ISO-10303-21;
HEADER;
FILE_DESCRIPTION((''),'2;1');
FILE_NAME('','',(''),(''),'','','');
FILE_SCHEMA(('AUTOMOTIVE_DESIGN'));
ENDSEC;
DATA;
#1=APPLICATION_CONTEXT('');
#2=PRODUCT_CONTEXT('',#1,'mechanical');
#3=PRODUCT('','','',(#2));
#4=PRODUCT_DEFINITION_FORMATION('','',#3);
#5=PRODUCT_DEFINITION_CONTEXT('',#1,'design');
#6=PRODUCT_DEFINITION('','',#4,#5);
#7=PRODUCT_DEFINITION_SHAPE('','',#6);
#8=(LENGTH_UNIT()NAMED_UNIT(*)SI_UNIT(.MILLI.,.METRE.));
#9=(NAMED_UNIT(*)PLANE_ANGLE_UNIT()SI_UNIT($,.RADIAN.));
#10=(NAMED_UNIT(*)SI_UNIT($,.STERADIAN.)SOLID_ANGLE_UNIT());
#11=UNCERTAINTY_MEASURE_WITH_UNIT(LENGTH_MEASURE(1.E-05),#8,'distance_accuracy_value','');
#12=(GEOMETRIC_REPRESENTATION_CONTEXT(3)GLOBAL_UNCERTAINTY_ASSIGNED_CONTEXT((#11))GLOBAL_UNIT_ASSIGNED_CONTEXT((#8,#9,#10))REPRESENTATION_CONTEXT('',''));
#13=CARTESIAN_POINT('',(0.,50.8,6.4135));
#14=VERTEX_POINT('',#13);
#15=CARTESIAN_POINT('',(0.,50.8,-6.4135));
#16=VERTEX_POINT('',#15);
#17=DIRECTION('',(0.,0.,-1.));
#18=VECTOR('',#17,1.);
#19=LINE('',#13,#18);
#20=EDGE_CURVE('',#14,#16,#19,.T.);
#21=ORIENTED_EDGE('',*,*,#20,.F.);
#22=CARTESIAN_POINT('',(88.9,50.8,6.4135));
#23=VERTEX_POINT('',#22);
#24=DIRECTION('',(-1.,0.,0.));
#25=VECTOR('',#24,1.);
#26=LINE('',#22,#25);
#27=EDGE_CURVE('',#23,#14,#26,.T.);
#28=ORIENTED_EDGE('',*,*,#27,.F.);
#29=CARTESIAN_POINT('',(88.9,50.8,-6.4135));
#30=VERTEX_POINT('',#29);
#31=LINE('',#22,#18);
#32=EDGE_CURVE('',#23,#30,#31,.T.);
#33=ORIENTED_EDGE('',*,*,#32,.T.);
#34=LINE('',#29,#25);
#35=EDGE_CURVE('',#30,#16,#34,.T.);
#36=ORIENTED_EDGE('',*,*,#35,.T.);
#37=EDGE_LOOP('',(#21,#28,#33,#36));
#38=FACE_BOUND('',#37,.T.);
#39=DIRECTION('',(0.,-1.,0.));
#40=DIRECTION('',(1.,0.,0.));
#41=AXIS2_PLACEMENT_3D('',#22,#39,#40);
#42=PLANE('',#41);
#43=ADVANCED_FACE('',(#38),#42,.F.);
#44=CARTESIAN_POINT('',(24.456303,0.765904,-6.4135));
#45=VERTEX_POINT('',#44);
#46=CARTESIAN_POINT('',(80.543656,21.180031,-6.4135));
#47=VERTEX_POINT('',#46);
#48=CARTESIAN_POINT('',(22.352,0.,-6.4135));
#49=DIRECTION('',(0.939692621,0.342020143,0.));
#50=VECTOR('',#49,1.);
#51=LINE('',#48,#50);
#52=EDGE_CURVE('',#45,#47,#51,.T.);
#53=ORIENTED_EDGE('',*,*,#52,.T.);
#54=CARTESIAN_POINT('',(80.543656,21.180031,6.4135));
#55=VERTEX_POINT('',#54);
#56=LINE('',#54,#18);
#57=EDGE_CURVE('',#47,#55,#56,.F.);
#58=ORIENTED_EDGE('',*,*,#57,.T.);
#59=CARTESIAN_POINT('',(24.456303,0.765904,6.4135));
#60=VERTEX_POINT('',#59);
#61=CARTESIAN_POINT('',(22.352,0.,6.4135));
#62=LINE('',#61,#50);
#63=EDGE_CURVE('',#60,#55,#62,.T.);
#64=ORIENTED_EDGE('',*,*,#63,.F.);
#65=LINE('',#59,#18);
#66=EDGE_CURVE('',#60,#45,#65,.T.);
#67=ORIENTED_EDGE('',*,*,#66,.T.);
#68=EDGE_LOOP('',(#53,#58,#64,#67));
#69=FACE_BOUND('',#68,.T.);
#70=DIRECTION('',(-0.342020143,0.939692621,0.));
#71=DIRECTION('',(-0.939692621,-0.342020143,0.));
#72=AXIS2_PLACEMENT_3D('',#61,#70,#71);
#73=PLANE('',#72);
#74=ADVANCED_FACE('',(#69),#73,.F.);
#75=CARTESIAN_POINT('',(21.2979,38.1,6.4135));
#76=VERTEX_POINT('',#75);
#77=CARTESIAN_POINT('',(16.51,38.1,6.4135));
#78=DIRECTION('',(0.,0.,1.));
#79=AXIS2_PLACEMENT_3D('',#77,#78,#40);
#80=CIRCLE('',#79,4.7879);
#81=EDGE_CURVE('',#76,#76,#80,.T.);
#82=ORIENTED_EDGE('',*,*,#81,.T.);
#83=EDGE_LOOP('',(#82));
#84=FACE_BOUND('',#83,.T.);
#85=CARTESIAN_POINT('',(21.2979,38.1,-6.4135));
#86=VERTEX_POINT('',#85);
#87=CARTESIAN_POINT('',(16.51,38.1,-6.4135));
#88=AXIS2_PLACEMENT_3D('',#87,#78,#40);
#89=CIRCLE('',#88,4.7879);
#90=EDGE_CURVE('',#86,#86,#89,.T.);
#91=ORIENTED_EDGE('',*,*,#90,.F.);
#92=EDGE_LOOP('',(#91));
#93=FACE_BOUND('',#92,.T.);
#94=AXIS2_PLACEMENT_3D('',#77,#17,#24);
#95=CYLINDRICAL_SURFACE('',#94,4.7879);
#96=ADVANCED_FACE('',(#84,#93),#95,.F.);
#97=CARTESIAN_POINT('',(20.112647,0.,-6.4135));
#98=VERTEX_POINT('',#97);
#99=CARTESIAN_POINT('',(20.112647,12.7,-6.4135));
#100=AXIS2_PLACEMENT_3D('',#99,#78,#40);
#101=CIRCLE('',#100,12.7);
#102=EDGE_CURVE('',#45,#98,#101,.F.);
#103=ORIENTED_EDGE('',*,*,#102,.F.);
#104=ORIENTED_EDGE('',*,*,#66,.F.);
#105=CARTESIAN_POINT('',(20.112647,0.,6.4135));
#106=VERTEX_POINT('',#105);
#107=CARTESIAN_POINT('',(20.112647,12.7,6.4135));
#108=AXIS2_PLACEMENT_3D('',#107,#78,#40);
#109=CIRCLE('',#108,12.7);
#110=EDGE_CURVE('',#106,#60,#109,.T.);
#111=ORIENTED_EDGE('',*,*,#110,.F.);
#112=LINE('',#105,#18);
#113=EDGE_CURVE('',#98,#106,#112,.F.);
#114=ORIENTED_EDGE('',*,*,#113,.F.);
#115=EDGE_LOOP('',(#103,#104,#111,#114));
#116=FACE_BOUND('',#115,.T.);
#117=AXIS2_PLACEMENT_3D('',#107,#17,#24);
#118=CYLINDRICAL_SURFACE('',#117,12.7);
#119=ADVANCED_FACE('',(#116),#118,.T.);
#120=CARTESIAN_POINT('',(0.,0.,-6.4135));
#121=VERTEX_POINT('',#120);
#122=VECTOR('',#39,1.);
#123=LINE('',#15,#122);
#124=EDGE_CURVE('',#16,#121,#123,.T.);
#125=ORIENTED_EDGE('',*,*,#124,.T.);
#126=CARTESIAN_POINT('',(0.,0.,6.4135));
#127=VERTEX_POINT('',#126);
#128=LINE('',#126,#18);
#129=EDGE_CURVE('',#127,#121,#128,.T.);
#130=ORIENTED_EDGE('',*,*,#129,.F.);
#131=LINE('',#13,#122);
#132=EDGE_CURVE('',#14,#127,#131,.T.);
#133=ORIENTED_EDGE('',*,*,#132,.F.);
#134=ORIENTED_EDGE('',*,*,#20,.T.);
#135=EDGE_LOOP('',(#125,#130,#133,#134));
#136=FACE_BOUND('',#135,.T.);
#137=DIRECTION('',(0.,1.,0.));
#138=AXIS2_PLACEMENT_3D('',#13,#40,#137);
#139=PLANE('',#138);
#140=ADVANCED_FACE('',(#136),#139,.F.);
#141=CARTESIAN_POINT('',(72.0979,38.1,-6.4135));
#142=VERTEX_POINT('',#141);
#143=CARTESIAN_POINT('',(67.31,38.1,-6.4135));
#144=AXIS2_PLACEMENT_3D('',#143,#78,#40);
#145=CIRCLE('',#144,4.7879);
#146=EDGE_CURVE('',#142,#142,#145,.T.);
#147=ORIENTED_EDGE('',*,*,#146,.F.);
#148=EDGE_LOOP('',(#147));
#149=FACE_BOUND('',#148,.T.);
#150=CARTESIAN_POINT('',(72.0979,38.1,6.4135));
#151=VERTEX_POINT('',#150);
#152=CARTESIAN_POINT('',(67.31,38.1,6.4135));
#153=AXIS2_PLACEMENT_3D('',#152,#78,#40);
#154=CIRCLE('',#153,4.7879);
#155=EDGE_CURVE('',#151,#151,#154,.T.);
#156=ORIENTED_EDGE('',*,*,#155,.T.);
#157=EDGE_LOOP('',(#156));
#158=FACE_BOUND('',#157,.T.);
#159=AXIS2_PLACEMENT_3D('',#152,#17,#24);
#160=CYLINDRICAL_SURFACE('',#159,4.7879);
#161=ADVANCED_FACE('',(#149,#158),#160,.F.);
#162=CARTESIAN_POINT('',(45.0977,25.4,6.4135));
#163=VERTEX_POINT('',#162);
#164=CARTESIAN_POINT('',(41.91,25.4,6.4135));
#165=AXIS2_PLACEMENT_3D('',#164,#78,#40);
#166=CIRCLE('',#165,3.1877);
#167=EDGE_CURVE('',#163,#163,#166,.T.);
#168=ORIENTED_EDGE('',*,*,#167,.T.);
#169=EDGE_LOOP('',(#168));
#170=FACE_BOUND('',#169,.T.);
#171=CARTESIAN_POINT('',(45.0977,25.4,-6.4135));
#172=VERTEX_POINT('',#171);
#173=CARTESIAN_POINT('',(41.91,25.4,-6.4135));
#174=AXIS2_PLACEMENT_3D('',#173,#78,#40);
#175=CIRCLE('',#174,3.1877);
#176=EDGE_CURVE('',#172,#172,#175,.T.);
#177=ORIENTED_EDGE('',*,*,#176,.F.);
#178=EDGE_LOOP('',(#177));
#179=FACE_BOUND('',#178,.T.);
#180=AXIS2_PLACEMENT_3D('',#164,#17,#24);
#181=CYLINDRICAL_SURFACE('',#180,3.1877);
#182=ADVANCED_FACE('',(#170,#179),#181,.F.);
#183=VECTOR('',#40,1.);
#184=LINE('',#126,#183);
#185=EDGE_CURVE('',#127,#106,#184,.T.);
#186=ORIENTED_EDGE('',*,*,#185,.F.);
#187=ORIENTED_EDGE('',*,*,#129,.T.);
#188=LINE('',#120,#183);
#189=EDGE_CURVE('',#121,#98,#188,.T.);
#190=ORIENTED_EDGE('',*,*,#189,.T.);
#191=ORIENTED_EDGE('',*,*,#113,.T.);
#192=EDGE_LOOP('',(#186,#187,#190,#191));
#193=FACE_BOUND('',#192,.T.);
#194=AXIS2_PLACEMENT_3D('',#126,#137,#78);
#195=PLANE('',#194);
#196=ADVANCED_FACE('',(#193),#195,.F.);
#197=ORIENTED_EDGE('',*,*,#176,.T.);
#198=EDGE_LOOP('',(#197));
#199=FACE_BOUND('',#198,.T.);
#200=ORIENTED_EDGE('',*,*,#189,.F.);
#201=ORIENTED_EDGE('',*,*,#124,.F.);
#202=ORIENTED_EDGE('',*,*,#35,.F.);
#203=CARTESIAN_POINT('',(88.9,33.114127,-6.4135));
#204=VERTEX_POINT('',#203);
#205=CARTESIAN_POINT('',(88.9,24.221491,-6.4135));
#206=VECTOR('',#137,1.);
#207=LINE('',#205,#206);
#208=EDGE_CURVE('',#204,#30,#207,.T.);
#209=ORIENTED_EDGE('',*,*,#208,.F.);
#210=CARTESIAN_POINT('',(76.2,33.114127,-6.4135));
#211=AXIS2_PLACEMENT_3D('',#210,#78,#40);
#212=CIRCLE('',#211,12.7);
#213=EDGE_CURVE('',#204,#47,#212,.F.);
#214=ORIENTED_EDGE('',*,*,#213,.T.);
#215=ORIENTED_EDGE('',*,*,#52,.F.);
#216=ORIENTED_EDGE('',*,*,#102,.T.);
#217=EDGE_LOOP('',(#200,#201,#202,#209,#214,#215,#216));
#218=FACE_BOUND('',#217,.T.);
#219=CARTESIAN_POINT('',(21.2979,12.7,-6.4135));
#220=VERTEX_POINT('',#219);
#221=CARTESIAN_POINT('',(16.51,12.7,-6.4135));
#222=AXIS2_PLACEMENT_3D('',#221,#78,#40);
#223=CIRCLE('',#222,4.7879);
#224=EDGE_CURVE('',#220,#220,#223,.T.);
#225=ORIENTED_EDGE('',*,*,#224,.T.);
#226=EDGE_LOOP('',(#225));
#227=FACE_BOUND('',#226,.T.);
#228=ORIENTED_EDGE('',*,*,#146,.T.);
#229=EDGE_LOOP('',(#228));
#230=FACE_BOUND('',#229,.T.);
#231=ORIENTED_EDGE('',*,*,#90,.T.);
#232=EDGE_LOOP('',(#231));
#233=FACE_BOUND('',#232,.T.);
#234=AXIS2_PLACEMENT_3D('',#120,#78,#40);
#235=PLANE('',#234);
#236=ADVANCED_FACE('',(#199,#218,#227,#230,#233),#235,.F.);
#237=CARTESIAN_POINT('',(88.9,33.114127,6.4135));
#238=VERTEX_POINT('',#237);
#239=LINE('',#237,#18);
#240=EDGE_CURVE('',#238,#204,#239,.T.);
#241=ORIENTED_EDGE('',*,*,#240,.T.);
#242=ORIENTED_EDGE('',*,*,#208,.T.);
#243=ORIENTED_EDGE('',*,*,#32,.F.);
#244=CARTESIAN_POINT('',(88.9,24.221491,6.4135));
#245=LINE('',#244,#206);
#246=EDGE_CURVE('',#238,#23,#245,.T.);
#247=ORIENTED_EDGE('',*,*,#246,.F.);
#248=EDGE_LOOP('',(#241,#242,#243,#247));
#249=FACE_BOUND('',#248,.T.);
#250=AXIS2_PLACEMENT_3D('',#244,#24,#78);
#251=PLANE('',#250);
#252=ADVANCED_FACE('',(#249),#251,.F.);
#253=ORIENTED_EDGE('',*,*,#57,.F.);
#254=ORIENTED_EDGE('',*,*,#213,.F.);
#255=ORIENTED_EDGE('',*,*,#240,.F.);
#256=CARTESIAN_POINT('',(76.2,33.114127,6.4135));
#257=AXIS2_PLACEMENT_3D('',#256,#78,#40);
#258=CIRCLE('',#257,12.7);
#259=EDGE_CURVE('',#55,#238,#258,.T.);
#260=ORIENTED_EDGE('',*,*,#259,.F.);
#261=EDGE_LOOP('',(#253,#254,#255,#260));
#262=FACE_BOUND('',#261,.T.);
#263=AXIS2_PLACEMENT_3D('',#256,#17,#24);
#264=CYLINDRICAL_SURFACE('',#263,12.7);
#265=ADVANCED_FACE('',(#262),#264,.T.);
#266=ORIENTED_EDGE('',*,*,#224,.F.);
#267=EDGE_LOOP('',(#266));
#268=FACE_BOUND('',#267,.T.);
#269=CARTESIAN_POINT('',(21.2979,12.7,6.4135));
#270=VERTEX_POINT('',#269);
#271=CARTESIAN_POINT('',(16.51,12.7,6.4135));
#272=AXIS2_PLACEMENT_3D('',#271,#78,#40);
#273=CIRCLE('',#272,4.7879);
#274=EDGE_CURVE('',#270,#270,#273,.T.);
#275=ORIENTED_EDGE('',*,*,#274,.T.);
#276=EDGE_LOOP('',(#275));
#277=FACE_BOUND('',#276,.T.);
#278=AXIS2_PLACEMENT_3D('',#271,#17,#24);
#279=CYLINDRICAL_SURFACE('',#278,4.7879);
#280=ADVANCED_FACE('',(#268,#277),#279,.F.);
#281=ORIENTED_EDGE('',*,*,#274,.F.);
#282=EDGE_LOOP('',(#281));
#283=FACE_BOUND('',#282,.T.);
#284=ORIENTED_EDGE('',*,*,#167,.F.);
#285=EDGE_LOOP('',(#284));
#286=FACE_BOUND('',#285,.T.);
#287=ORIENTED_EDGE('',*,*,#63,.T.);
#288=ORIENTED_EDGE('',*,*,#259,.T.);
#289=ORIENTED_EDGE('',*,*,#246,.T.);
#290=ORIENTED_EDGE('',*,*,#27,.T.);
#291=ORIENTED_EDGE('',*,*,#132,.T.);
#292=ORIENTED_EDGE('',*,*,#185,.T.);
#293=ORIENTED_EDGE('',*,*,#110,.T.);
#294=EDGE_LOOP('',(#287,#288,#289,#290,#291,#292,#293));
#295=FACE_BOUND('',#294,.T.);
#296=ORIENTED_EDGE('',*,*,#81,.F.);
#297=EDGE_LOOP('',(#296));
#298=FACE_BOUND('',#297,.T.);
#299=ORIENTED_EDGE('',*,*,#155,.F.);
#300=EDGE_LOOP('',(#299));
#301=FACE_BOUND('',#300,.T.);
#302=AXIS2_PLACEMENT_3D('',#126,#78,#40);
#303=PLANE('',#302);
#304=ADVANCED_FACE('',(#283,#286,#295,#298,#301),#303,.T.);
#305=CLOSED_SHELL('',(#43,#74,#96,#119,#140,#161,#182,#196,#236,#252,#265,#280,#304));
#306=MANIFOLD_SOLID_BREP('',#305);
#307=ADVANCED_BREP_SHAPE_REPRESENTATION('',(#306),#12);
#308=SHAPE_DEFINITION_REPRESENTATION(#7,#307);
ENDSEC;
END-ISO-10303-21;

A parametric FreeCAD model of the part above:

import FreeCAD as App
import Part
import Sketcher

V = App.Vector
Q = App.Units.Quantity


def edges_at(feature, points):
    """Names of the edges that pass closest to the given points."""
    edges = feature.Shape.Edges
    near = lambda p: min(range(len(edges)), key=lambda i: edges[i].distToShape(Part.Vertex(*p))[0])
    return sorted({f"Edge{near(p) + 1}" for p in points})


def add_polygon(sketch, points):
    """Adds a closed chain of lines whose ends are joined by coincident constraints."""
    first, n = sketch.GeometryCount, len(points)
    for a, b in zip(points, points[1:] + points[:1]):
        sketch.addGeometry(Part.LineSegment(App.Vector(*a, 0), App.Vector(*b, 0)), False)
    for i in range(n):
        sketch.addConstraint(Sketcher.Constraint("Coincident", first + i, 2, first + (i + 1) % n, 1))

doc = App.newDocument("Part")
body = doc.addObject("PartDesign::Body", "Body")

# Sketch on XY plane
sketch1 = doc.addObject("Sketcher::SketchObject", "Sketch")
body.addObject(sketch1)
sketch1.AttachmentSupport = (doc.XY_Plane, [""])
sketch1.MapMode = "FlatFace"
add_polygon(sketch1, [(0, 0), (22.4, 0), (88.9, 24.2), (88.9, 50.8), (0, 50.8)])  # lines 0-4
sketch1.addGeometry(Part.Circle(V(16.5, 12.7, 0), V(0, 0, 1), 4.8), False)  # 5
sketch1.addGeometry(Part.Circle(V(41.9, 25.4, 0), V(0, 0, 1), 3.2), False)  # 6
sketch1.addGeometry(Part.Circle(V(16.5, 38.1, 0), V(0, 0, 1), 4.8), False)  # 7
sketch1.addGeometry(Part.Circle(V(67.3, 38.1, 0), V(0, 0, 1), 4.8), False)  # 8
sketch1.addConstraint(Sketcher.Constraint("Horizontal", 0))
sketch1.addConstraint(Sketcher.Constraint("Vertical", 2))
sketch1.addConstraint(Sketcher.Constraint("Horizontal", 3))
sketch1.addConstraint(Sketcher.Constraint("Vertical", 4))
sketch1.addConstraint(Sketcher.Constraint("Coincident", 4, 2, -1, 1))
sketch1.addConstraint(Sketcher.Constraint("Equal", 5, 7))
sketch1.addConstraint(Sketcher.Constraint("Equal", 7, 8))
sketch1.addConstraint(Sketcher.Constraint("Horizontal", 7, 3, 8, 3))
sketch1.addConstraint(Sketcher.Constraint("Vertical", 5, 3, 7, 3))
sketch1.addConstraint(Sketcher.Constraint("DistanceY", 4, 2, 4, 1, Q("2 in")))
sketch1.addConstraint(Sketcher.Constraint("Diameter", 5, Q("0.377 in")))
sketch1.addConstraint(Sketcher.Constraint("Diameter", 6, Q("0.251 in")))
sketch1.addConstraint(Sketcher.Constraint("DistanceX", 3, 2, 3, 1, Q("3.5 in")))
sketch1.addConstraint(Sketcher.Constraint("DistanceY", -1, 1, 6, 3, Q("1 in")))
sketch1.addConstraint(Sketcher.Constraint("Angle", 1, Q("20 deg")))
sketch1.addConstraint(Sketcher.Constraint("DistanceX", 5, 3, 6, 3, Q("1 in")))
sketch1.addConstraint(Sketcher.Constraint("DistanceY", 5, 3, 7, 3, Q("1 in")))
sketch1.addConstraint(Sketcher.Constraint("DistanceX", 6, 3, 8, 3, Q("1 in")))
sketch1.addConstraint(Sketcher.Constraint("DistanceX", 0, 1, 0, 2, Q("0.88 in")))
sketch1.addConstraint(Sketcher.Constraint("DistanceY", -1, 1, 5, 3, Q("0.5 in")))
sketch1.addConstraint(Sketcher.Constraint("DistanceX", -1, 1, 5, 3, Q("0.65 in")))
pad1 = doc.addObject("PartDesign::Pad", "Pad")
body.addObject(pad1)
pad1.Profile = sketch1
pad1.Length = Q("0.505 in")
pad1.Midplane = True
doc.recompute()

fillet = doc.addObject("PartDesign::Fillet", "Fillet")
body.addObject(fillet)
fillet.Base = (pad1, edges_at(pad1, [(88.9, 24.221, 0), (22.352, 0, 0)]))
fillet.Radius = Q("0.5 in")

doc.recompute()
